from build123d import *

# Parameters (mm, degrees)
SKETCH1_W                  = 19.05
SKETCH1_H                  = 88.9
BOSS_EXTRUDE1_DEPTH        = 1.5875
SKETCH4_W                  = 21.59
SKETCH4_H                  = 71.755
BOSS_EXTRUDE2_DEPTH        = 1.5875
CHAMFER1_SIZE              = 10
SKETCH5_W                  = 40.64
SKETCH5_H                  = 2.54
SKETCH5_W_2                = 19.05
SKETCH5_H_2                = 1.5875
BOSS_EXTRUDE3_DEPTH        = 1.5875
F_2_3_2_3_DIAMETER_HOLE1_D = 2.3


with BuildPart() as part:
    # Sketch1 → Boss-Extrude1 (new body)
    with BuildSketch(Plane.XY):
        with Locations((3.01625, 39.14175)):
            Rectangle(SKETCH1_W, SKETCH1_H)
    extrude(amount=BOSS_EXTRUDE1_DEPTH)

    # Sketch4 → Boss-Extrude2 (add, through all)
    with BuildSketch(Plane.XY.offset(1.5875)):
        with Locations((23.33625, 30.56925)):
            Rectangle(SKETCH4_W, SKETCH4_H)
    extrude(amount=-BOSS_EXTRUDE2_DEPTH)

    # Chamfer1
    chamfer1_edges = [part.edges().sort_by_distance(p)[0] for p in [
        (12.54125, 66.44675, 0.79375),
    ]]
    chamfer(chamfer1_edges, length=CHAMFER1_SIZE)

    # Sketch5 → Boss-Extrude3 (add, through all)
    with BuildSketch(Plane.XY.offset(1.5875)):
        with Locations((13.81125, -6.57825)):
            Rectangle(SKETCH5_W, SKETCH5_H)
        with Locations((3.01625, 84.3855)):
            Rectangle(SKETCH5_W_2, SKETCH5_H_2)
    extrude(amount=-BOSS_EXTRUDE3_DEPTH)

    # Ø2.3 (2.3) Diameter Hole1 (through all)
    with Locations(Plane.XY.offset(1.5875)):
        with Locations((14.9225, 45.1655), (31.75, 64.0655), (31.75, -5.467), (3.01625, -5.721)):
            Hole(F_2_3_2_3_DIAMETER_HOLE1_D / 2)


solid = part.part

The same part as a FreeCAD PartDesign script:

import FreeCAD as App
import Part
import Sketcher

V = App.Vector
Q = App.Units.Quantity


def edges_at(feature, points):
    """Names of the edges that pass closest to the given points."""
    edges = feature.Shape.Edges
    near = lambda p: min(range(len(edges)), key=lambda i: edges[i].distToShape(Part.Vertex(*p))[0])
    return sorted({f"Edge{near(p) + 1}" for p in points})

doc = App.newDocument("Part")
body = doc.addObject("PartDesign::Body", "Body")

sketch1 = body.newObject("Sketcher::SketchObject", "Sketch")
sketch1.AttachmentSupport = (doc.getObject("XY_Plane"), [""])
sketch1.MapMode = "FlatFace"
sketch1.addGeometry([
    Part.LineSegment(V(-7, 84, 0), V(-7, -5, 0)),
    Part.LineSegment(V(-7, -5, 0), V(13, -5, 0)),
    Part.LineSegment(V(13, -5, 0), V(13, 84, 0)),
    Part.LineSegment(V(13, 84, 0), V(-7, 84, 0)),
], False)
sketch1.addConstraint([
    Sketcher.Constraint("Coincident", 0, 2, 1, 1),
    Sketcher.Constraint("Coincident", 1, 2, 2, 1),
    Sketcher.Constraint("Coincident", 2, 2, 3, 1),
    Sketcher.Constraint("Coincident", 3, 2, 0, 1),
    Sketcher.Constraint("Vertical", 0),
    Sketcher.Constraint("Horizontal", 1),
    Sketcher.Constraint("Vertical", 2),
    Sketcher.Constraint("Horizontal", 3),
    Sketcher.Constraint("DistanceY", 0, 2, 0, 1, Q("3.5 in")),
    Sketcher.Constraint("DistanceX", 1, 1, 1, 2, Q("0.75 in")),
    Sketcher.Constraint("DistanceX", 0, 2, -1, 1, 6.50875),
    Sketcher.Constraint("DistanceY", 0, 2, -1, 1, 5.30825),
])
pad1 = body.newObject("PartDesign::Pad", "Pad")
pad1.Profile = sketch1
pad1.Length = Q("0.0625 in")

sketch2 = body.newObject("Sketcher::SketchObject", "Sketch001")
sketch2.AttachmentSupport = (doc.getObject("XY_Plane"), [""])
sketch2.MapMode = "FlatFace"
sketch2.AttachmentOffset = App.Placement(V(0, 0, 0.0625 * 25.4), App.Rotation())
sketch2.addGeometry([
    Part.LineSegment(V(13, 66, 0), V(13, -5, 0)),
    Part.LineSegment(V(13, -5, 0), V(34, -5, 0)),
    Part.LineSegment(V(34, -5, 0), V(34, 66, 0)),
    Part.LineSegment(V(34, 66, 0), V(13, 66, 0)),
], False)
sketch2.addConstraint([
    Sketcher.Constraint("Coincident", 0, 2, 1, 1),
    Sketcher.Constraint("Coincident", 1, 2, 2, 1),
    Sketcher.Constraint("Coincident", 2, 2, 3, 1),
    Sketcher.Constraint("Coincident", 3, 2, 0, 1),
    Sketcher.Constraint("Vertical", 0),
    Sketcher.Constraint("Horizontal", 1),
    Sketcher.Constraint("Vertical", 2),
    Sketcher.Constraint("Horizontal", 3),
    Sketcher.Constraint("DistanceX", 1, 1, 1, 2, Q("0.85 in")),
    Sketcher.Constraint("DistanceY", 0, 2, 0, 1, Q("2.825 in")),
    Sketcher.Constraint("DistanceX", -1, 1, 1, 2, Q("1.34375 in")),
    Sketcher.Constraint("DistanceY", 0, 2, -1, 1, 5.30825),
])
pad2 = body.newObject("PartDesign::Pad", "Pad001")
pad2.Profile = sketch2
pad2.Length = Q("0.0625 in")
pad2.Reversed = True
doc.recompute()

chamfer = body.newObject("PartDesign::Chamfer", "Chamfer")
chamfer.Base = (pad2, edges_at(pad2, [(12.541, 66.447, 0.794)]))
chamfer.Size = 10

sketch3 = body.newObject("Sketcher::SketchObject", "Sketch002")
sketch3.AttachmentSupport = (doc.getObject("XY_Plane"), [""])
sketch3.MapMode = "FlatFace"
sketch3.AttachmentOffset = App.Placement(V(0, 0, 0.0625 * 25.4), App.Rotation())
sketch3.addGeometry([
    Part.LineSegment(V(-6.5, -5.3, 0), V(-6.5, -7.8, 0)),
    Part.LineSegment(V(-6.5, -7.8, 0), V(34.1, -7.8, 0)),
    Part.LineSegment(V(34.1, -7.8, 0), V(34.1, -5.3, 0)),
    Part.LineSegment(V(34.1, -5.3, 0), V(-6.5, -5.3, 0)),
    Part.LineSegment(V(-6.5, 85.2, 0), V(-6.5, 83.6, 0)),
    Part.LineSegment(V(-6.5, 83.6, 0), V(12.5, 83.6, 0)),
    Part.LineSegment(V(12.5, 83.6, 0), V(12.5, 85.2, 0)),
    Part.LineSegment(V(12.5, 85.2, 0), V(-6.5, 85.2, 0)),
], False)
sketch3.addConstraint([
    Sketcher.Constraint("Coincident", 0, 2, 1, 1),
    Sketcher.Constraint("Coincident", 1, 2, 2, 1),
    Sketcher.Constraint("Coincident", 2, 2, 3, 1),
    Sketcher.Constraint("Coincident", 3, 2, 0, 1),
    Sketcher.Constraint("Coincident", 4, 2, 5, 1),
    Sketcher.Constraint("Coincident", 5, 2, 6, 1),
    Sketcher.Constraint("Coincident", 6, 2, 7, 1),
    Sketcher.Constraint("Coincident", 7, 2, 4, 1),
    Sketcher.Constraint("Vertical", 0),
    Sketcher.Constraint("Horizontal", 1),
    Sketcher.Constraint("Vertical", 2),
    Sketcher.Constraint("Horizontal", 3),
    Sketcher.Constraint("Vertical", 4),
    Sketcher.Constraint("Horizontal", 5),
    Sketcher.Constraint("Vertical", 6),
    Sketcher.Constraint("Horizontal", 7),
    Sketcher.Constraint("Vertical", 3, 2, 4, 2),
    Sketcher.Constraint("DistanceX", 1, 1, 1, 2, Q("1.6 in")),
    Sketcher.Constraint("DistanceY", 0, 2, 0, 1, Q("0.1 in")),
    Sketcher.Constraint("DistanceX", 5, 1, 5, 2, Q("0.75 in")),
    Sketcher.Constraint("DistanceY", 3, 2, 4, 2, Q("3.5 in")),
    Sketcher.Constraint("DistanceY", 4, 2, 4, 1, Q("0.0625 in")),
    Sketcher.Constraint("DistanceX", -1, 1, 1, 2, Q("1.34375 in")),
    Sketcher.Constraint("DistanceY", 0, 2, -1, 1, 7.84825),
])
pad3 = body.newObject("PartDesign::Pad", "Pad002")
pad3.Profile = sketch3
pad3.Type = "UpToLast"
pad3.Reversed = True

sketch4 = body.newObject("Sketcher::SketchObject", "Sketch003")
sketch4.AttachmentSupport = (doc.getObject("XY_Plane"), [""])
sketch4.MapMode = "FlatFace"
sketch4.AttachmentOffset = App.Placement(V(0, 0, 0.0625 * 25.4), App.Rotation())
sketch4.addGeometry([
    Part.Circle(V(14.9, 45.2, 0), V(0, 0, 1), 1.1),
    Part.Circle(V(31.8, 64.1, 0), V(0, 0, 1), 1.1),
    Part.Circle(V(31.8, -5.5, 0), V(0, 0, 1), 1.1),
    Part.Circle(V(3, -5.7, 0), V(0, 0, 1), 1.1),
], False)
sketch4.addConstraint([
    Sketcher.Constraint("Equal", 0, 1),
    Sketcher.Constraint("Equal", 1, 2),
    Sketcher.Constraint("Equal", 2, 3),
    Sketcher.Constraint("Vertical", 1, 3, 2, 3),
    Sketcher.Constraint("Diameter", 0, 2.3),
    Sketcher.Constraint("DistanceX", -1, 1, 1, 3, Q("1.25 in")),
    Sketcher.Constraint("DistanceY", 3, 3, 2, 3, Q("0.01 in")),
    Sketcher.Constraint("DistanceX", 3, 3, 0, 3, Q("0.46875 in")),
    Sketcher.Constraint("DistanceX", -1, 1, 0, 3, Q("0.5875 in")),
    Sketcher.Constraint("DistanceY", 2, 3, 1, 3, Q("2.7375 in")),
    Sketcher.Constraint("DistanceY", -1, 1, 0, 3, 45.1655),
    Sketcher.Constraint("DistanceY", -1, 1, 1, 3, 64.0655),
])
doc.recompute()
hole = body.newObject("PartDesign::Hole", "Hole")
hole.Profile = sketch4
hole.ThreadType = "None"
hole.Diameter = 2.3
hole.DepthType = "ThroughAll"

doc.recompute()
